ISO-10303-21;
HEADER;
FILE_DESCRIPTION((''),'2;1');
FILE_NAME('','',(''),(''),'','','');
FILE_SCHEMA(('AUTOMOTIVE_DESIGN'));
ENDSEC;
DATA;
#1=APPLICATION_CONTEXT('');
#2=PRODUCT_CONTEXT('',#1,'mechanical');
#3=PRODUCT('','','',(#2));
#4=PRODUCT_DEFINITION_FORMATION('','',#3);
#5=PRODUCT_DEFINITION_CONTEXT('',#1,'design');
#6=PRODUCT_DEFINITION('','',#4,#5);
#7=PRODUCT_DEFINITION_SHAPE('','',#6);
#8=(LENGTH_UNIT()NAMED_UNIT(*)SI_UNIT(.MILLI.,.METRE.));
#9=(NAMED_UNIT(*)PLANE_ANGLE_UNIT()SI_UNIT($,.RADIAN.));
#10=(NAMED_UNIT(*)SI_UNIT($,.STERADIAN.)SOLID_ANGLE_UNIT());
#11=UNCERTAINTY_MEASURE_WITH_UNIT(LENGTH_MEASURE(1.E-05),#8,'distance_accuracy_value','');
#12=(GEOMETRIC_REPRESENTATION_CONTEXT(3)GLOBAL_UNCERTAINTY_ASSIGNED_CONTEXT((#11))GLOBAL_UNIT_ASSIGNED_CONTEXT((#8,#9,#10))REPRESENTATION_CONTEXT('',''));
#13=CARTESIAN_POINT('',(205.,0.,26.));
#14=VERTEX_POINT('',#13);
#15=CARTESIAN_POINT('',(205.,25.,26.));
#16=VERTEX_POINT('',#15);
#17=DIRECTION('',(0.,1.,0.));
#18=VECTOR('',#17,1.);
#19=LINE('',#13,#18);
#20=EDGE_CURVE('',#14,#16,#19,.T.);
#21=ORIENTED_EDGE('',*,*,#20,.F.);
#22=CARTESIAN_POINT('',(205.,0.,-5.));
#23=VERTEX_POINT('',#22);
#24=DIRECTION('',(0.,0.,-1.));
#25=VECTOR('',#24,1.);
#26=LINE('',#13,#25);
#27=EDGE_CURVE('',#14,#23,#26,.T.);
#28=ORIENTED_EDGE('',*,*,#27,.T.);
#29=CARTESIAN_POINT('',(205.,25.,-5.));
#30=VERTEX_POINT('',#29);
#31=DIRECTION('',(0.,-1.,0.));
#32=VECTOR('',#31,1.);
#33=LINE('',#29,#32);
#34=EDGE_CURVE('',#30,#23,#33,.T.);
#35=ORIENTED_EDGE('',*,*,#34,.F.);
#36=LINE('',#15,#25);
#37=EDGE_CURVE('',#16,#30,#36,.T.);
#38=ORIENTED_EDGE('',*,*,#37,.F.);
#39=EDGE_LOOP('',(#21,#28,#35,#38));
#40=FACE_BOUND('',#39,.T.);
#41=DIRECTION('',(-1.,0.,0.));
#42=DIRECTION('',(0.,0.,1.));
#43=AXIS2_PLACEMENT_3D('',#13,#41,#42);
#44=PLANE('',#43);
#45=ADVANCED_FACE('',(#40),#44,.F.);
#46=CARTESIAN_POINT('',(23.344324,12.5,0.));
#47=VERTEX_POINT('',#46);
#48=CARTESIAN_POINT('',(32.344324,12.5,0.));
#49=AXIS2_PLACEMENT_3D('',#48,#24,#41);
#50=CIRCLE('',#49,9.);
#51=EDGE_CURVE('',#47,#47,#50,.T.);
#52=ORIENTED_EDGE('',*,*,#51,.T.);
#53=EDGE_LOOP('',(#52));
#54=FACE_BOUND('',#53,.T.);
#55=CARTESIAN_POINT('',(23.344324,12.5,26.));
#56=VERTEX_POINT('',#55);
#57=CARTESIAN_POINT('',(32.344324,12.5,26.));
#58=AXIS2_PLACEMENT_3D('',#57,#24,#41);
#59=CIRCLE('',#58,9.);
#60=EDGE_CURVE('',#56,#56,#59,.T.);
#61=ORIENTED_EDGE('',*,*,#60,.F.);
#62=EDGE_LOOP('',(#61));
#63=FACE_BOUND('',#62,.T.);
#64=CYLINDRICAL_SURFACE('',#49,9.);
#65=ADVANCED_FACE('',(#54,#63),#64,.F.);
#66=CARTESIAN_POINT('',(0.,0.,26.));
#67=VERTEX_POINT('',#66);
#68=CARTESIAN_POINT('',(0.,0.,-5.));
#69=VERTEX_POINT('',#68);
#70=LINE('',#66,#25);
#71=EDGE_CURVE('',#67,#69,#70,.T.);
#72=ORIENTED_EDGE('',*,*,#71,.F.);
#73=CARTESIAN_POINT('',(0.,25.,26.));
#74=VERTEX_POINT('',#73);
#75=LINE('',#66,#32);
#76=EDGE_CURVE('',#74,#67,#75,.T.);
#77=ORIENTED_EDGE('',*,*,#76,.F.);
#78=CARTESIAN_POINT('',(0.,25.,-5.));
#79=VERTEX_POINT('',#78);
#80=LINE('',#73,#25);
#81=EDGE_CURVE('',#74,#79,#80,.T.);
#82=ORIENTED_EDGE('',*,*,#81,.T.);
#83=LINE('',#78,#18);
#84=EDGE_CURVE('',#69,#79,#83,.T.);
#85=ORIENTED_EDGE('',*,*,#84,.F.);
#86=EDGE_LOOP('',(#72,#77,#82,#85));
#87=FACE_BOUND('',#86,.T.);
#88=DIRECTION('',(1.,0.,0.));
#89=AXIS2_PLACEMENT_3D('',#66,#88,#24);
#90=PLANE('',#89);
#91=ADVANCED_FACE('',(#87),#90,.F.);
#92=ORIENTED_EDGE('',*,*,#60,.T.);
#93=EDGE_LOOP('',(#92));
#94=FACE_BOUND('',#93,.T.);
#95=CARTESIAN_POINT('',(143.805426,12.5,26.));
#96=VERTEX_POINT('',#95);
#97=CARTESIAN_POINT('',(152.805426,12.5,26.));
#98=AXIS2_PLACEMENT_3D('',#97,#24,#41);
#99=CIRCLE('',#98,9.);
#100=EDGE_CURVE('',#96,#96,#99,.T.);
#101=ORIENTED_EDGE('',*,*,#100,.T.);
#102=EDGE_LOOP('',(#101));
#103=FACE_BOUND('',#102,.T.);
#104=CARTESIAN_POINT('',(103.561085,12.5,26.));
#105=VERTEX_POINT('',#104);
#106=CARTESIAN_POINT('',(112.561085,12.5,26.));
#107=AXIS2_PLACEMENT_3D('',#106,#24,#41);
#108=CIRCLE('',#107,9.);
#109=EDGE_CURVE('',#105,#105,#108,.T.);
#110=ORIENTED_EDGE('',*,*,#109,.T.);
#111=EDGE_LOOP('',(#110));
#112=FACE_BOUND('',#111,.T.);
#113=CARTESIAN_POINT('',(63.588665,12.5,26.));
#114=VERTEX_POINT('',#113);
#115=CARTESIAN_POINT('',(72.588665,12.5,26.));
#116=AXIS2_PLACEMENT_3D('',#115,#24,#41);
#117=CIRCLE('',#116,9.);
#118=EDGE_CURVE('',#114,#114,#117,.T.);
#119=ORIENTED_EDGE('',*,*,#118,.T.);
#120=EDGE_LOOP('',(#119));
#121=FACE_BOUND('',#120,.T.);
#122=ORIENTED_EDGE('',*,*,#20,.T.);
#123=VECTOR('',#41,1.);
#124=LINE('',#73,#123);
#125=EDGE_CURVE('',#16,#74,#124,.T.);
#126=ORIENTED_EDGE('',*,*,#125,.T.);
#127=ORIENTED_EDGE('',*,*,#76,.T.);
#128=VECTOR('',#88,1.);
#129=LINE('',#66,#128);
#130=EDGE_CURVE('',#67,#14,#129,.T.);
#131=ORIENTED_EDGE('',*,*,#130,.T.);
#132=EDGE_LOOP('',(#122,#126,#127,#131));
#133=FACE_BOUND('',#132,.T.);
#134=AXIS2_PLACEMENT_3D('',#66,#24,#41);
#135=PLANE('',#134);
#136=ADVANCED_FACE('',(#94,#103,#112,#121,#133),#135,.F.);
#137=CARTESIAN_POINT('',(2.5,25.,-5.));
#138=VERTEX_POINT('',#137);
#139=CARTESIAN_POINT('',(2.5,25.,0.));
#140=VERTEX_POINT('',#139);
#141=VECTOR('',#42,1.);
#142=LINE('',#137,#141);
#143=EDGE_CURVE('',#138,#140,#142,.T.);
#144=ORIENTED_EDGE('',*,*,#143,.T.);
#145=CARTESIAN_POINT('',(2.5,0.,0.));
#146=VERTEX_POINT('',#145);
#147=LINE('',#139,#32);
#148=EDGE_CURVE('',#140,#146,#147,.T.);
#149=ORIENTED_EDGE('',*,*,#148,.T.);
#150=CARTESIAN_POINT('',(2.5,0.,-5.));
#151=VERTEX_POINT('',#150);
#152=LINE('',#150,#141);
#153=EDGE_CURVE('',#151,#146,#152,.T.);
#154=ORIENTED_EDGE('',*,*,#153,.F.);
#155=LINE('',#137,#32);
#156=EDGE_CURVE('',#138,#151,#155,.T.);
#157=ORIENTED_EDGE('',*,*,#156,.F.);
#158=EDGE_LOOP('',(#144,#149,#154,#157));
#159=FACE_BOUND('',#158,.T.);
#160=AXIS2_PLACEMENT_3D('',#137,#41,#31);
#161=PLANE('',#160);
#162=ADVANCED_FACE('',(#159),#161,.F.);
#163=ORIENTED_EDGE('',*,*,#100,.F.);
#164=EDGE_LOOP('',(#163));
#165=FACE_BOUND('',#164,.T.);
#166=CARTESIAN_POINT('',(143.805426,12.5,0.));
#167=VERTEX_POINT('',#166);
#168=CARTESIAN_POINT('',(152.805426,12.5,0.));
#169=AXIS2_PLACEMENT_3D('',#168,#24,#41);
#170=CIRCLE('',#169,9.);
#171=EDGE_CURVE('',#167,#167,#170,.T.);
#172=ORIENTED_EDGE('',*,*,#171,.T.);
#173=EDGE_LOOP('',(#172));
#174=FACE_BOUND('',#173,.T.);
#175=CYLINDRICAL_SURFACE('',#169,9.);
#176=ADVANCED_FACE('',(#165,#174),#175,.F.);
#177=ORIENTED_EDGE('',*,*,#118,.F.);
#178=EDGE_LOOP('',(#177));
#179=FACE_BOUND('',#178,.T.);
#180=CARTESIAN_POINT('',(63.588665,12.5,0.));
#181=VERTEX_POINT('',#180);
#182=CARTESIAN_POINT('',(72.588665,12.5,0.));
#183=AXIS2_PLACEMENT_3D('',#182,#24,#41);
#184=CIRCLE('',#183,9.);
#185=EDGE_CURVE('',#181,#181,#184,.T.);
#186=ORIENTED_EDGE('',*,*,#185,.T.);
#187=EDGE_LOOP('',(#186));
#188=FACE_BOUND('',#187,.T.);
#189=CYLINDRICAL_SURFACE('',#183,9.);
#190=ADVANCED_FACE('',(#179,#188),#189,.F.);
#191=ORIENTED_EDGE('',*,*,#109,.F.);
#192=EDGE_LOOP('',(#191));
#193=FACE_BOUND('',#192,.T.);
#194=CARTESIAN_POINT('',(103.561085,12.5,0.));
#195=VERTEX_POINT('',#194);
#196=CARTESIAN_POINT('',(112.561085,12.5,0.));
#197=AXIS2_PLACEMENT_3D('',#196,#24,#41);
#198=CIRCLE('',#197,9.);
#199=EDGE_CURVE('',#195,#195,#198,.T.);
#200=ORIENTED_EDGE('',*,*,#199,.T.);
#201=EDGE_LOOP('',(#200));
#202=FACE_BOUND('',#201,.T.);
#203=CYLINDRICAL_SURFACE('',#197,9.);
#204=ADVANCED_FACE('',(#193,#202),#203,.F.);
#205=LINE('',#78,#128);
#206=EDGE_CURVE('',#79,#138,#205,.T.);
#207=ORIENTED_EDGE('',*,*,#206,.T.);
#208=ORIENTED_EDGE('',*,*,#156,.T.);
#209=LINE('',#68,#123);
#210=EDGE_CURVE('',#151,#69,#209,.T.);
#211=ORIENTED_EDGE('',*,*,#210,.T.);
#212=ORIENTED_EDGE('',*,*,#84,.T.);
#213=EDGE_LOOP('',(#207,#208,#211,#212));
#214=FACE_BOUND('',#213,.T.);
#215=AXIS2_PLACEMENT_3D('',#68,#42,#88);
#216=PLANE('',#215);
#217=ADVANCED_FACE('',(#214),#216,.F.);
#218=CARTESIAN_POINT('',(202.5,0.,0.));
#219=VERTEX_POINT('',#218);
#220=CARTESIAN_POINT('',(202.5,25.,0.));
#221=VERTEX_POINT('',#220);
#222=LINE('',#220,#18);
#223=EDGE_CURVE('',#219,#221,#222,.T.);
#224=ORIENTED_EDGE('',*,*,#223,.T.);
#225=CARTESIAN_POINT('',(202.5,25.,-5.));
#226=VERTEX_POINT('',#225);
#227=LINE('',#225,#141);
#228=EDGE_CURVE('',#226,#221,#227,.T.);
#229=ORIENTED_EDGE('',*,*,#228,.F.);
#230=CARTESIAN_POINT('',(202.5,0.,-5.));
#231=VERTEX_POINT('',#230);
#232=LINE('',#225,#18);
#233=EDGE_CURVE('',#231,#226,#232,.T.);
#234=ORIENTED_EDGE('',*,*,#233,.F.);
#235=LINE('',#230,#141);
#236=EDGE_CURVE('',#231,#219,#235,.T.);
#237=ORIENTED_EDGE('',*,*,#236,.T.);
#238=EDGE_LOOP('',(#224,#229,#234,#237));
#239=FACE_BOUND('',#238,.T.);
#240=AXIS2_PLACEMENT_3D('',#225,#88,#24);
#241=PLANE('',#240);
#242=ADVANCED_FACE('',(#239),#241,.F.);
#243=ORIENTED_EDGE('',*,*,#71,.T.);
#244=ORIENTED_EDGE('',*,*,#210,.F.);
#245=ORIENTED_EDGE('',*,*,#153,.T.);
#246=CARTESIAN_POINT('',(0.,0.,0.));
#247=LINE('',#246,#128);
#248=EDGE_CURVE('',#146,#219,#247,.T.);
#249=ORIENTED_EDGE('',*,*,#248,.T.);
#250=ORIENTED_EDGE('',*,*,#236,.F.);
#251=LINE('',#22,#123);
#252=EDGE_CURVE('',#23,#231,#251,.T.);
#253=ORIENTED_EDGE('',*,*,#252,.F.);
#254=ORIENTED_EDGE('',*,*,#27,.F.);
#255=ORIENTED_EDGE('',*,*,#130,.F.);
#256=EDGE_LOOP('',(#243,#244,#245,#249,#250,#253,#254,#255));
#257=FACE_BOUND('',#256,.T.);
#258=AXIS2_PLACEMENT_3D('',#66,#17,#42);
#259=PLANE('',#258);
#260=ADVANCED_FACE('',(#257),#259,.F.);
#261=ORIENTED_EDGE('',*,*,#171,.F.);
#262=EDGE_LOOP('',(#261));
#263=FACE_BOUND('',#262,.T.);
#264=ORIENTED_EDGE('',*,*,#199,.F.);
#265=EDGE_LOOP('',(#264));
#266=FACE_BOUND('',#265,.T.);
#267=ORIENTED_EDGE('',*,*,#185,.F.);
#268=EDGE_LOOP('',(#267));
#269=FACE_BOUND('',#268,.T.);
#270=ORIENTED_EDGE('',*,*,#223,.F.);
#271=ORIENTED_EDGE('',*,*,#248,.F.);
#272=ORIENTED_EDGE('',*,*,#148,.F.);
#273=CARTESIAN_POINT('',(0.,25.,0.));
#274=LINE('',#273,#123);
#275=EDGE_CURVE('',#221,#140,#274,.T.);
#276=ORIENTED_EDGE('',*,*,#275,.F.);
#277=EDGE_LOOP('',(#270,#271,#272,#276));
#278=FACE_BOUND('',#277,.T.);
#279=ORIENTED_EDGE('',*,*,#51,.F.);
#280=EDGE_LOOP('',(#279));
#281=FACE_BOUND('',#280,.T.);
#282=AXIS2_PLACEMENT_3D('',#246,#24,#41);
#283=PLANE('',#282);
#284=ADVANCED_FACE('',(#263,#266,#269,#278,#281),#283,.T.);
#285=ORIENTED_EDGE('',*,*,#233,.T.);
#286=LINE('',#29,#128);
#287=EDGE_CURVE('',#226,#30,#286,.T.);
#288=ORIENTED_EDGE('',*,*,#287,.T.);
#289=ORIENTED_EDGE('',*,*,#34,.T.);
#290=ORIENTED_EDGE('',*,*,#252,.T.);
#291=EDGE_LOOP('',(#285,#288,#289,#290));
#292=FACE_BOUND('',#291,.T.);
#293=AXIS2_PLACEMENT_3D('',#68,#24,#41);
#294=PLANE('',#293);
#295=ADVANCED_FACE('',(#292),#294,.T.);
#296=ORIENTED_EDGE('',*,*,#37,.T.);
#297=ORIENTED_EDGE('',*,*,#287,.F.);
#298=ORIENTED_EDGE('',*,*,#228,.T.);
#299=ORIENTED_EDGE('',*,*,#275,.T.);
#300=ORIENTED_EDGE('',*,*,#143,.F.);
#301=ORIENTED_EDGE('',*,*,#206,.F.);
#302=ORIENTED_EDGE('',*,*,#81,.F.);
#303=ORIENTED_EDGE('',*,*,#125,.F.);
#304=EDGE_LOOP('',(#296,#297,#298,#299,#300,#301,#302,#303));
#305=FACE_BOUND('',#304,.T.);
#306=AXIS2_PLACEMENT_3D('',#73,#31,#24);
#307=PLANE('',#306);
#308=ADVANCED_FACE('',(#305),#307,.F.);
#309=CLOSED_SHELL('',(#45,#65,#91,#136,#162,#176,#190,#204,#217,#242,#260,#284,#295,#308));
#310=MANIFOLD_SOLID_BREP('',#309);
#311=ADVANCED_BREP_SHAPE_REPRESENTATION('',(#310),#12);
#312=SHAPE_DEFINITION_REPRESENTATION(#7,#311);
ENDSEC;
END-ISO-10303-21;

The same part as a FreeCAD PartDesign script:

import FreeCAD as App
import Part
import Sketcher
Q = App.Units.Quantity


def add_polygon(sketch, points):
    """Adds a closed chain of lines whose ends are joined by coincident constraints."""
    first, n = sketch.GeometryCount, len(points)
    for a, b in zip(points, points[1:] + points[:1]):
        sketch.addGeometry(Part.LineSegment(App.Vector(*a, 0), App.Vector(*b, 0)), False)
    for i in range(n):
        sketch.addConstraint(Sketcher.Constraint("Coincident", first + i, 2, first + (i + 1) % n, 1))

doc = App.newDocument("Part")
body = doc.addObject("PartDesign::Body", "Body")

# Sketch on XY plane
sketch1 = body.newObject("Sketcher::SketchObject", "Sketch")
sketch1.AttachmentSupport = (doc.getObject("XY_Plane"), [""])
sketch1.MapMode = "FlatFace"
add_polygon(sketch1, [(0, 25), (0, 0), (205, 0), (205, 25)])  # lines 0-3
sketch1.addConstraint([
    Sketcher.Constraint("Vertical", 0),
    Sketcher.Constraint("Horizontal", 1),
    Sketcher.Constraint("Vertical", 2),
    Sketcher.Constraint("Horizontal", 3),
    Sketcher.Constraint("Coincident", 0, 2, -1, 1),
    Sketcher.Constraint("DistanceX", 1, 1, 1, 2, Q("205 mm")),
    Sketcher.Constraint("DistanceY", 0, 2, 0, 1, Q("25 mm")),
])
pad1 = body.newObject("PartDesign::Pad", "Pad")
pad1.Profile = sketch1
pad1.Length = 26

# Sketch on XY plane
sketch2 = body.newObject("Sketcher::SketchObject", "Sketch001")
sketch2.AttachmentSupport = (doc.getObject("XY_Plane"), [""])
sketch2.MapMode = "FlatFace"
add_polygon(sketch2, [(2.5, 25), (2.5, 0), (0, 0), (0, 25)])  # lines 0-3
add_polygon(sketch2, [(205, 25), (205, 0), (202.5, 0), (202.5, 25)])  # lines 4-7
sketch2.addConstraint([
    Sketcher.Constraint("Vertical", 0),
    Sketcher.Constraint("Horizontal", 1),
    Sketcher.Constraint("Vertical", 2),
    Sketcher.Constraint("Horizontal", 3),
    Sketcher.Constraint("Vertical", 4),
    Sketcher.Constraint("Horizontal", 5),
    Sketcher.Constraint("Vertical", 6),
    Sketcher.Constraint("Horizontal", 7),
    Sketcher.Constraint("Coincident", 1, 2, -1, 1),
    Sketcher.Constraint("PointOnObject", 4, 2, -1),
    Sketcher.Constraint("Horizontal", 3, 2, 6, 2),
    Sketcher.Constraint("Equal", 3, 5),
    Sketcher.Constraint("DistanceY", 0, 2, 0, 1, Q("25 mm")),
    Sketcher.Constraint("DistanceX", 1, 2, 1, 1, Q("2.5 mm")),
    Sketcher.Constraint("DistanceX", -1, 1, 4, 2, Q("205 mm")),
])
pad2 = body.newObject("PartDesign::Pad", "Pad001")
pad2.Profile = sketch2
pad2.Length = 5
pad2.Reversed = True

# Sketch on XY plane
sketch3 = body.newObject("Sketcher::SketchObject", "Sketch002")
sketch3.AttachmentSupport = (doc.getObject("XY_Plane"), [""])
sketch3.MapMode = "FlatFace"
sketch3.addGeometry([
    Part.Circle(App.Vector(32, 12, 0), App.Vector(0, 0, 1), 9),
    Part.Circle(App.Vector(73, 12, 0), App.Vector(0, 0, 1), 9),
    Part.Circle(App.Vector(113, 12, 0), App.Vector(0, 0, 1), 9),
    Part.Circle(App.Vector(153, 12, 0), App.Vector(0, 0, 1), 9),
], False)
sketch3.addConstraint([
    Sketcher.Constraint("Equal", 0, 1),
    Sketcher.Constraint("Equal", 1, 2),
    Sketcher.Constraint("Equal", 2, 3),
    Sketcher.Constraint("Horizontal", 0, 3, 1, 3),
    Sketcher.Constraint("Horizontal", 1, 3, 2, 3),
    Sketcher.Constraint("Horizontal", 2, 3, 3, 3),
    Sketcher.Constraint("Diameter", 0, Q("18 mm")),
    Sketcher.Constraint("DistanceY", -1, 1, 0, 3, Q("12.5 mm")),
    Sketcher.Constraint("DistanceX", 0, 3, 3, 3, Q("120.461102 mm")),
    Sketcher.Constraint("DistanceX", 0, 3, 1, 3, Q("40.244341 mm")),
    Sketcher.Constraint("DistanceX", 1, 3, 2, 3, Q("39.97242 mm")),
    Sketcher.Constraint("DistanceX", -1, 1, 0, 3, Q("32.344324 mm")),
])
doc.recompute()
hole = body.newObject("PartDesign::Hole", "Hole")
hole.Profile = sketch3
hole.ThreadType = "None"
hole.Diameter = 18
hole.DepthType = "ThroughAll"
hole.Reversed = True

doc.recompute()
